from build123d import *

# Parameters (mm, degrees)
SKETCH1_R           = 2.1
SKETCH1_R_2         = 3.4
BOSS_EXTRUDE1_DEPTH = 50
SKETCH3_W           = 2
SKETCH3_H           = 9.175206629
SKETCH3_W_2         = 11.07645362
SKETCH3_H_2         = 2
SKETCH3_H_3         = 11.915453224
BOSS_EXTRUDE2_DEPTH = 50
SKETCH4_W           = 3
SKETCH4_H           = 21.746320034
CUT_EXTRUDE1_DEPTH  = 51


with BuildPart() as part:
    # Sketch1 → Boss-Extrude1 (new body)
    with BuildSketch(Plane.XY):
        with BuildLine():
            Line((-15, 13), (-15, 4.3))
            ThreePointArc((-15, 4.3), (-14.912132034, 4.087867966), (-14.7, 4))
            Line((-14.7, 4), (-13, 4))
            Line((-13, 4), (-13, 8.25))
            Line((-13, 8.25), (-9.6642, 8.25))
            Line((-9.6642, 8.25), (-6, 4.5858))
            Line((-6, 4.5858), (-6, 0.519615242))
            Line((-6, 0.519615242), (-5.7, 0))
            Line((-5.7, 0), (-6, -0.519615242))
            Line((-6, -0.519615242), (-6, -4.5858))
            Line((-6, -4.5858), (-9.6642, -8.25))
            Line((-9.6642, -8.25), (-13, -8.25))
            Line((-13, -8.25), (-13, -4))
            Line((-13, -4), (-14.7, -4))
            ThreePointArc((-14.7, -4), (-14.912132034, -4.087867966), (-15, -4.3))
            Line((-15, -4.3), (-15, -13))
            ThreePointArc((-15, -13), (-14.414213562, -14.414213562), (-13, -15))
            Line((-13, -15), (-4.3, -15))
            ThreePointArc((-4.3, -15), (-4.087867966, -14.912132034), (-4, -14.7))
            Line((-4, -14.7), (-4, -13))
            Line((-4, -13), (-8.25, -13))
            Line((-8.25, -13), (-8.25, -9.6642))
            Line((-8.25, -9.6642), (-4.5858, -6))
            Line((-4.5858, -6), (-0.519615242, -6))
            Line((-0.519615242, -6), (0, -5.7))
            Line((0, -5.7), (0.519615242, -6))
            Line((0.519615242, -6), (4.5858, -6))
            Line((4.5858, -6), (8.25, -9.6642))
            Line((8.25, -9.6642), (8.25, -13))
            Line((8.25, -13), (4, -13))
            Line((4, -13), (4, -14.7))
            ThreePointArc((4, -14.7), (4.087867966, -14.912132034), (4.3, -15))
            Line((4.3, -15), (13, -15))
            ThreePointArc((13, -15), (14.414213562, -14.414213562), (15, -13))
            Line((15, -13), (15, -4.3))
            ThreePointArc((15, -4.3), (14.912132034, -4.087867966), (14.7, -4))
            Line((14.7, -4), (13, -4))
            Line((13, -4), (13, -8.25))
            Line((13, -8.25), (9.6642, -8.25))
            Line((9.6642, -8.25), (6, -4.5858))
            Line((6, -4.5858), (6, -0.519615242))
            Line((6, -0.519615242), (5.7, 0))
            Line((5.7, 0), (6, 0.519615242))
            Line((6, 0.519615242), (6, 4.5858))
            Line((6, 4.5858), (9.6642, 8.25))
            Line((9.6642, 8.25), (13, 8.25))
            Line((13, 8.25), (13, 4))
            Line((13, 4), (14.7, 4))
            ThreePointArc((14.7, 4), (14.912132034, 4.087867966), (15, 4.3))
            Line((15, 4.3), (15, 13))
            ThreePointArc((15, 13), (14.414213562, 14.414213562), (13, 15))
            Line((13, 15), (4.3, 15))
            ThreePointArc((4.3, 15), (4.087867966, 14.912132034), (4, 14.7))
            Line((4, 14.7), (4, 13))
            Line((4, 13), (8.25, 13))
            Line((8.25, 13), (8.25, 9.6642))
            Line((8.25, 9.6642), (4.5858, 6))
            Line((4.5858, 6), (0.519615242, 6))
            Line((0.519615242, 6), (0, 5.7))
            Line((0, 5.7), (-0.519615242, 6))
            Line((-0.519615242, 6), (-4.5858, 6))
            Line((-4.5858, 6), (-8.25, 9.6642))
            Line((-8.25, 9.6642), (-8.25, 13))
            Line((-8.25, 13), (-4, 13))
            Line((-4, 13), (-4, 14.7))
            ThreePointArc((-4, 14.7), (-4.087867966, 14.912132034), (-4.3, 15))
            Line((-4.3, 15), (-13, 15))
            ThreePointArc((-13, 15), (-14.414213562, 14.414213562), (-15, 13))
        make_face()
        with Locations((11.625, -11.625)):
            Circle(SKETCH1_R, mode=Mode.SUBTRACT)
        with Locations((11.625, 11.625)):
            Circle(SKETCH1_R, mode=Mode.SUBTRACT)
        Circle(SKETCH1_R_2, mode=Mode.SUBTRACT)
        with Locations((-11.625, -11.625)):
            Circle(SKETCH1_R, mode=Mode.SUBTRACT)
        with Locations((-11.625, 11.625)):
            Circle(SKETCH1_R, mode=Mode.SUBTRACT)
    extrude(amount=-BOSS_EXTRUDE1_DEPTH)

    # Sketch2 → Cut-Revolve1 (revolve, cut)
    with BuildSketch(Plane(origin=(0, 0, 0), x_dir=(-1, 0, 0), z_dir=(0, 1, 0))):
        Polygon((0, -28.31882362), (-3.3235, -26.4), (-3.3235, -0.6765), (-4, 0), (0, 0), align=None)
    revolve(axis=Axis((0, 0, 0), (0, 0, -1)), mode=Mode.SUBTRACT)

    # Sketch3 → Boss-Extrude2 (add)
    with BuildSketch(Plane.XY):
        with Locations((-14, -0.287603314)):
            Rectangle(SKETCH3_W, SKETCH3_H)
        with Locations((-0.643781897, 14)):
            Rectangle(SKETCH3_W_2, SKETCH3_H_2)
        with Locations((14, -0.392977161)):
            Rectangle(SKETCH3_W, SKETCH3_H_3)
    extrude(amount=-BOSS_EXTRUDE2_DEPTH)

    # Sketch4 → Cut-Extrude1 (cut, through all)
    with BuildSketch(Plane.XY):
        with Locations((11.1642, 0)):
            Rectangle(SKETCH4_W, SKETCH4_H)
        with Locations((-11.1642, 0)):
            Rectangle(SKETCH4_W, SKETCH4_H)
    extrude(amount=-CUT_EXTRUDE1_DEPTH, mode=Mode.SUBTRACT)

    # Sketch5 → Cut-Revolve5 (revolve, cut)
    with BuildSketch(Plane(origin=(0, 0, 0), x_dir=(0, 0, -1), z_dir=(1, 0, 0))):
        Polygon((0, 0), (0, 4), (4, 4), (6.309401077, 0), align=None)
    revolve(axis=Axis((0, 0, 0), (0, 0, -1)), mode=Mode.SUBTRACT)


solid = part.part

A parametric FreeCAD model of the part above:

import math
import FreeCAD as App
import Part
import Sketcher

V = App.Vector
Q = App.Units.Quantity

doc = App.newDocument("Part")
body = doc.addObject("PartDesign::Body", "Body")

sketch1 = body.newObject("Sketcher::SketchObject", "Sketch")
sketch1.AttachmentSupport = (doc.getObject("XY_Plane"), [""])
sketch1.MapMode = "FlatFace"
sketch1.addGeometry([
    Part.LineSegment(V(-15, 13, 0), V(-15, 4.3, 0)),
    Part.ArcOfCircle(Part.Circle(V(-14.7, 4.3, 0), V(0, 0, 1), 0.3), math.radians(-180), math.radians(-90)),
    Part.LineSegment(V(-14.7, 4, 0), V(-13, 4, 0)),
    Part.LineSegment(V(-13, 4, 0), V(-13, 8.25, 0)),
    Part.LineSegment(V(-13, 8.25, 0), V(-9.66, 8.25, 0)),
    Part.LineSegment(V(-9.66, 8.25, 0), V(-6, 4.59, 0)),
    Part.LineSegment(V(-6, 4.59, 0), V(-6, 0.52, 0)),
    Part.LineSegment(V(-6, 0.52, 0), V(-5.7, 0, 0)),
    Part.LineSegment(V(-5.7, 0, 0), V(-6, -0.52, 0)),
    Part.LineSegment(V(-6, -0.52, 0), V(-6, -4.59, 0)),
    Part.LineSegment(V(-6, -4.59, 0), V(-9.66, -8.25, 0)),
    Part.LineSegment(V(-9.66, -8.25, 0), V(-13, -8.25, 0)),
    Part.LineSegment(V(-13, -8.25, 0), V(-13, -4, 0)),
    Part.LineSegment(V(-13, -4, 0), V(-14.7, -4, 0)),
    Part.ArcOfCircle(Part.Circle(V(-14.7, -4.3, 0), V(0, 0, 1), 0.3), math.radians(90), math.radians(180)),
    Part.LineSegment(V(-15, -4.3, 0), V(-15, -13, 0)),
    Part.ArcOfCircle(Part.Circle(V(-13, -13, 0), V(0, 0, 1), 2), math.radians(-180), math.radians(-90)),
    Part.LineSegment(V(-13, -15, 0), V(-4.3, -15, 0)),
    Part.ArcOfCircle(Part.Circle(V(-4.3, -14.7, 0), V(0, 0, 1), 0.3), math.radians(-90), math.radians(0)),
    Part.LineSegment(V(-4, -14.7, 0), V(-4, -13, 0)),
    Part.LineSegment(V(-4, -13, 0), V(-8.25, -13, 0)),
    Part.LineSegment(V(-8.25, -13, 0), V(-8.25, -9.66, 0)),
    Part.LineSegment(V(-8.25, -9.66, 0), V(-4.59, -6, 0)),
    Part.LineSegment(V(-4.59, -6, 0), V(-0.52, -6, 0)),
    Part.LineSegment(V(-0.52, -6, 0), V(0, -5.7, 0)),
    Part.LineSegment(V(0, -5.7, 0), V(0.52, -6, 0)),
    Part.LineSegment(V(0.52, -6, 0), V(4.59, -6, 0)),
    Part.LineSegment(V(4.59, -6, 0), V(8.25, -9.66, 0)),
    Part.LineSegment(V(8.25, -9.66, 0), V(8.25, -13, 0)),
    Part.LineSegment(V(8.25, -13, 0), V(4, -13, 0)),
    Part.LineSegment(V(4, -13, 0), V(4, -14.7, 0)),
    Part.ArcOfCircle(Part.Circle(V(4.3, -14.7, 0), V(0, 0, 1), 0.3), math.radians(-180), math.radians(-90)),
    Part.LineSegment(V(4.3, -15, 0), V(13, -15, 0)),
    Part.ArcOfCircle(Part.Circle(V(13, -13, 0), V(0, 0, 1), 2), math.radians(-90), math.radians(0)),
    Part.LineSegment(V(15, -13, 0), V(15, -4.3, 0)),
    Part.ArcOfCircle(Part.Circle(V(14.7, -4.3, 0), V(0, 0, 1), 0.3), math.radians(0), math.radians(90)),
    Part.LineSegment(V(14.7, -4, 0), V(13, -4, 0)),
    Part.LineSegment(V(13, -4, 0), V(13, -8.25, 0)),
    Part.LineSegment(V(13, -8.25, 0), V(9.66, -8.25, 0)),
    Part.LineSegment(V(9.66, -8.25, 0), V(6, -4.59, 0)),
    Part.LineSegment(V(6, -4.59, 0), V(6, -0.52, 0)),
    Part.LineSegment(V(6, -0.52, 0), V(5.7, 0, 0)),
    Part.LineSegment(V(5.7, 0, 0), V(6, 0.52, 0)),
    Part.LineSegment(V(6, 0.52, 0), V(6, 4.59, 0)),
    Part.LineSegment(V(6, 4.59, 0), V(9.66, 8.25, 0)),
    Part.LineSegment(V(9.66, 8.25, 0), V(13, 8.25, 0)),
    Part.LineSegment(V(13, 8.25, 0), V(13, 4, 0)),
    Part.LineSegment(V(13, 4, 0), V(14.7, 4, 0)),
    Part.ArcOfCircle(Part.Circle(V(14.7, 4.3, 0), V(0, 0, 1), 0.3), math.radians(-90), math.radians(0)),
    Part.LineSegment(V(15, 4.3, 0), V(15, 13, 0)),
    Part.ArcOfCircle(Part.Circle(V(13, 13, 0), V(0, 0, 1), 2), math.radians(0), math.radians(90)),
    Part.LineSegment(V(13, 15, 0), V(4.3, 15, 0)),
    Part.ArcOfCircle(Part.Circle(V(4.3, 14.7, 0), V(0, 0, 1), 0.3), math.radians(90), math.radians(180)),
    Part.LineSegment(V(4, 14.7, 0), V(4, 13, 0)),
    Part.LineSegment(V(4, 13, 0), V(8.25, 13, 0)),
    Part.LineSegment(V(8.25, 13, 0), V(8.25, 9.66, 0)),
    Part.LineSegment(V(8.25, 9.66, 0), V(4.59, 6, 0)),
    Part.LineSegment(V(4.59, 6, 0), V(0.52, 6, 0)),
    Part.LineSegment(V(0.52, 6, 0), V(0, 5.7, 0)),
    Part.LineSegment(V(0, 5.7, 0), V(-0.52, 6, 0)),
    Part.LineSegment(V(-0.52, 6, 0), V(-4.59, 6, 0)),
    Part.LineSegment(V(-4.59, 6, 0), V(-8.25, 9.66, 0)),
    Part.LineSegment(V(-8.25, 9.66, 0), V(-8.25, 13, 0)),
    Part.LineSegment(V(-8.25, 13, 0), V(-4, 13, 0)),
    Part.LineSegment(V(-4, 13, 0), V(-4, 14.7, 0)),
    Part.ArcOfCircle(Part.Circle(V(-4.3, 14.7, 0), V(0, 0, 1), 0.3), math.radians(0), math.radians(90)),
    Part.LineSegment(V(-4.3, 15, 0), V(-13, 15, 0)),
    Part.ArcOfCircle(Part.Circle(V(-13, 13, 0), V(0, 0, 1), 2), math.radians(90), math.radians(180)),
    Part.Circle(V(-11.62, -11.62, 0), V(0, 0, 1), 2.1),
    Part.Circle(V(11.62, -11.62, 0), V(0, 0, 1), 2.1),
    Part.Circle(V(-11.62, 11.62, 0), V(0, 0, 1), 2.1),
    Part.Circle(V(0, 0, 0), V(0, 0, 1), 3.4),
    Part.Circle(V(11.62, 11.62, 0), V(0, 0, 1), 2.1),
], False)
sketch1.addConstraint([
    Sketcher.Constraint("Tangent", 0, 2, 1, 1),
    Sketcher.Constraint("Tangent", 1, 2, 2, 1),
    Sketcher.Constraint("Coincident", 2, 2, 3, 1),
    Sketcher.Constraint("Coincident", 3, 2, 4, 1),
    Sketcher.Constraint("Coincident", 4, 2, 5, 1),
    Sketcher.Constraint("Coincident", 5, 2, 6, 1),
    Sketcher.Constraint("Coincident", 6, 2, 7, 1),
    Sketcher.Constraint("Coincident", 7, 2, 8, 1),
    Sketcher.Constraint("Coincident", 8, 2, 9, 1),
    Sketcher.Constraint("Coincident", 9, 2, 10, 1),
    Sketcher.Constraint("Coincident", 10, 2, 11, 1),
    Sketcher.Constraint("Coincident", 11, 2, 12, 1),
    Sketcher.Constraint("Coincident", 12, 2, 13, 1),
    Sketcher.Constraint("Tangent", 13, 2, 14, 1),
    Sketcher.Constraint("Tangent", 14, 2, 15, 1),
    Sketcher.Constraint("Tangent", 15, 2, 16, 1),
    Sketcher.Constraint("Tangent", 16, 2, 17, 1),
    Sketcher.Constraint("Tangent", 17, 2, 18, 1),
    Sketcher.Constraint("Tangent", 18, 2, 19, 1),
    Sketcher.Constraint("Coincident", 19, 2, 20, 1),
    Sketcher.Constraint("Coincident", 20, 2, 21, 1),
    Sketcher.Constraint("Coincident", 21, 2, 22, 1),
    Sketcher.Constraint("Coincident", 22, 2, 23, 1),
    Sketcher.Constraint("Coincident", 23, 2, 24, 1),
    Sketcher.Constraint("Coincident", 24, 2, 25, 1),
    Sketcher.Constraint("Coincident", 25, 2, 26, 1),
    Sketcher.Constraint("Coincident", 26, 2, 27, 1),
    Sketcher.Constraint("Coincident", 27, 2, 28, 1),
    Sketcher.Constraint("Coincident", 28, 2, 29, 1),
    Sketcher.Constraint("Coincident", 29, 2, 30, 1),
    Sketcher.Constraint("Tangent", 30, 2, 31, 1),
    Sketcher.Constraint("Tangent", 31, 2, 32, 1),
    Sketcher.Constraint("Tangent", 32, 2, 33, 1),
    Sketcher.Constraint("Tangent", 33, 2, 34, 1),
    Sketcher.Constraint("Tangent", 34, 2, 35, 1),
    Sketcher.Constraint("Tangent", 35, 2, 36, 1),
    Sketcher.Constraint("Coincident", 36, 2, 37, 1),
    Sketcher.Constraint("Coincident", 37, 2, 38, 1),
    Sketcher.Constraint("Coincident", 38, 2, 39, 1),
    Sketcher.Constraint("Coincident", 39, 2, 40, 1),
    Sketcher.Constraint("Coincident", 40, 2, 41, 1),
    Sketcher.Constraint("Coincident", 41, 2, 42, 1),
    Sketcher.Constraint("Coincident", 42, 2, 43, 1),
    Sketcher.Constraint("Coincident", 43, 2, 44, 1),
    Sketcher.Constraint("Coincident", 44, 2, 45, 1),
    Sketcher.Constraint("Coincident", 45, 2, 46, 1),
    Sketcher.Constraint("Coincident", 46, 2, 47, 1),
    Sketcher.Constraint("Tangent", 47, 2, 48, 1),
    Sketcher.Constraint("Tangent", 48, 2, 49, 1),
    Sketcher.Constraint("Tangent", 49, 2, 50, 1),
    Sketcher.Constraint("Tangent", 50, 2, 51, 1),
    Sketcher.Constraint("Tangent", 51, 2, 52, 1),
    Sketcher.Constraint("Tangent", 52, 2, 53, 1),
    Sketcher.Constraint("Coincident", 53, 2, 54, 1),
    Sketcher.Constraint("Coincident", 54, 2, 55, 1),
    Sketcher.Constraint("Coincident", 55, 2, 56, 1),
    Sketcher.Constraint("Coincident", 56, 2, 57, 1),
    Sketcher.Constraint("Coincident", 57, 2, 58, 1),
    Sketcher.Constraint("Coincident", 58, 2, 59, 1),
    Sketcher.Constraint("Coincident", 59, 2, 60, 1),
    Sketcher.Constraint("Coincident", 60, 2, 61, 1),
    Sketcher.Constraint("Coincident", 61, 2, 62, 1),
    Sketcher.Constraint("Coincident", 62, 2, 63, 1),
    Sketcher.Constraint("Coincident", 63, 2, 64, 1),
    Sketcher.Constraint("Tangent", 64, 2, 65, 1),
    Sketcher.Constraint("Tangent", 65, 2, 66, 1),
    Sketcher.Constraint("Tangent", 66, 2, 67, 1),
    Sketcher.Constraint("Tangent", 67, 2, 0, 1),
    Sketcher.Constraint("Vertical", 0),
    Sketcher.Constraint("Horizontal", 2),
    Sketcher.Constraint("Vertical", 3),
    Sketcher.Constraint("Horizontal", 4),
    Sketcher.Constraint("Vertical", 6),
    Sketcher.Constraint("Vertical", 9),
    Sketcher.Constraint("Horizontal", 11),
    Sketcher.Constraint("Vertical", 12),
    Sketcher.Constraint("Horizontal", 13),
    Sketcher.Constraint("Vertical", 15),
    Sketcher.Constraint("Horizontal", 17),
    Sketcher.Constraint("Vertical", 19),
    Sketcher.Constraint("Horizontal", 20),
    Sketcher.Constraint("Vertical", 21),
    Sketcher.Constraint("Horizontal", 23),
    Sketcher.Constraint("Horizontal", 26),
    Sketcher.Constraint("Vertical", 28),
    Sketcher.Constraint("Horizontal", 29),
    Sketcher.Constraint("Vertical", 30),
    Sketcher.Constraint("Horizontal", 32),
    Sketcher.Constraint("Vertical", 34),
    Sketcher.Constraint("Horizontal", 36),
    Sketcher.Constraint("Vertical", 37),
    Sketcher.Constraint("Horizontal", 38),
    Sketcher.Constraint("Vertical", 40),
    Sketcher.Constraint("Vertical", 43),
    Sketcher.Constraint("Horizontal", 45),
    Sketcher.Constraint("Vertical", 46),
    Sketcher.Constraint("Horizontal", 47),
    Sketcher.Constraint("Vertical", 49),
    Sketcher.Constraint("Horizontal", 51),
    Sketcher.Constraint("Vertical", 53),
    Sketcher.Constraint("Horizontal", 54),
    Sketcher.Constraint("Vertical", 55),
    Sketcher.Constraint("Horizontal", 57),
    Sketcher.Constraint("Horizontal", 60),
    Sketcher.Constraint("Vertical", 62),
    Sketcher.Constraint("Horizontal", 63),
    Sketcher.Constraint("Vertical", 64),
    Sketcher.Constraint("Horizontal", 66),
    Sketcher.Constraint("Coincident", 71, 3, -1, 1),
    Sketcher.Constraint("Equal", 1, 14),
    Sketcher.Constraint("Equal", 14, 18),
    Sketcher.Constraint("Equal", 18, 31),
    Sketcher.Constraint("Equal", 16, 33),
    Sketcher.Constraint("Equal", 31, 35),
    Sketcher.Constraint("Equal", 35, 48),
    Sketcher.Constraint("Equal", 33, 50),
    Sketcher.Constraint("Equal", 48, 52),
    Sketcher.Constraint("Equal", 52, 65),
    Sketcher.Constraint("Equal", 50, 67),
    Sketcher.Constraint("Equal", 68, 69),
    Sketcher.Constraint("Equal", 69, 70),
    Sketcher.Constraint("Equal", 70, 72),
    Sketcher.Constraint("Symmetric", 1, 3, 35, 3, -1, 1),
    Sketcher.Constraint("Symmetric", 14, 3, 48, 3, -1, 1),
    Sketcher.Constraint("Symmetric", 18, 3, 52, 3, -1, 1),
    Sketcher.Constraint("Symmetric", 31, 3, 65, 3, -1, 1),
    Sketcher.Constraint("Symmetric", 69, 3, 70, 3, -1, 1),
    Sketcher.Constraint("Symmetric", 68, 3, 72, 3, -1, 1),
    Sketcher.Constraint("Symmetric", 3, 2, 37, 2, -1, 1),
    Sketcher.Constraint("Symmetric", 5, 2, 39, 2, -1, 1),
    Sketcher.Constraint("Symmetric", 7, 2, 41, 2, -1, 1),
    Sketcher.Constraint("Symmetric", 8, 2, 42, 2, -1, 1),
    Sketcher.Constraint("Symmetric", 10, 2, 44, 2, -1, 1),
    Sketcher.Constraint("Symmetric", 20, 2, 54, 2, -1, 1),
    Sketcher.Constraint("Symmetric", 22, 2, 56, 2, -1, 1),
    Sketcher.Constraint("Symmetric", 24, 2, 58, 2, -1, 1),
    Sketcher.Constraint("Symmetric", 25, 2, 59, 2, -1, 1),
    Sketcher.Constraint("Symmetric", 27, 2, 61, 2, -1, 1),
    Sketcher.Constraint("Symmetric", 18, 3, 31, 3, -2),
    Sketcher.Constraint("Symmetric", 14, 3, 35, 3, -2),
    Sketcher.Constraint("Symmetric", 68, 3, 69, 3, -2),
    Sketcher.Constraint("Symmetric", 23, 2, 25, 2, -2),
    Sketcher.Constraint("Symmetric", 21, 2, 27, 2, -2),
    Sketcher.Constraint("Symmetric", 11, 2, 37, 2, -2),
    Sketcher.Constraint("Symmetric", 9, 2, 39, 2, -2),
    Sketcher.Constraint("PointOnObject", 7, 2, -1),
    Sketcher.Constraint("PointOnObject", 24, 2, -2),
    Sketcher.Constraint("Perpendicular", 5, 10),
    Sketcher.Constraint("Parallel", 10, 22),
    Sketcher.Constraint("Perpendicular", 7, 24),
    Sketcher.Constraint("Perpendicular", 8, 25),
    Sketcher.Constraint("Perpendicular", 22, 27),
    Sketcher.Constraint("Parallel", 27, 39),
    Sketcher.Constraint("Perpendicular", 24, 41),
    Sketcher.Constraint("Perpendicular", 39, 44),
    Sketcher.Constraint("Parallel", 44, 56),
    Sketcher.Constraint("Perpendicular", 41, 58),
    Sketcher.Constraint("Perpendicular", 56, 61),
    Sketcher.Constraint("Horizontal", 15, 2, 19, 2),
    Sketcher.Constraint("Horizontal", 20, 2, 28, 2),
    Sketcher.Constraint("Horizontal", 54, 2, 62, 2),
    Sketcher.Constraint("Vertical", 67, 3, 2, 2),
    Sketcher.Constraint("Vertical", 4, 2, 10, 2),
    Sketcher.Constraint("Vertical", 37, 2, 45, 2),
    Sketcher.Constraint("Equal", 66, 0),
    Sketcher.Constraint("Equal", 63, 3),
    Sketcher.Constraint("Equal", 60, 6),
    Sketcher.Constraint("Equal", 45, 21),
    Sketcher.Constraint("Equal", 10, 22),
    Sketcher.Constraint("Equal", 8, 24),
    Sketcher.Constraint("Radius", 16, Q("2 mm")),
    Sketcher.Constraint("Diameter", 68, Q("4.2 mm")),
    Sketcher.Constraint("Diameter", 71, Q("6.8 mm")),
    Sketcher.Constraint("Radius", 1, Q("0.3 mm")),
    Sketcher.Constraint("Angle", 7, Q("-60 deg")),
    Sketcher.Constraint("DistanceX", 17, 1, 17, 2, Q("8.7 mm")),
    Sketcher.Constraint("DistanceX", 16, 3, -1, 1, Q("13 mm")),
    Sketcher.Constraint("DistanceX", 5, 2, -1, 1, Q("6 mm")),
    Sketcher.Constraint("Distance", 7, Q("0.6 mm")),
    Sketcher.Constraint("DistanceX", 20, 2, 20, 1, Q("4.25 mm")),
    Sketcher.Constraint("DistanceX", 4, 1, 4, 2, Q("3.3358 mm")),
    Sketcher.Constraint("DistanceX", 68, 3, -1, 1, Q("11.625 mm")),
    Sketcher.Constraint("DistanceY", 68, 3, -1, 1, Q("11.625 mm")),
])
pad1 = body.newObject("PartDesign::Pad", "Pad")
pad1.Profile = sketch1
pad1.Length = 50
pad1.Reversed = True

sketch2 = body.newObject("Sketcher::SketchObject", "Sketch001")
sketch2.AttachmentSupport = (doc.getObject("XZ_Plane"), [""])
sketch2.MapMode = "FlatFace"
sketch2.addGeometry([
    Part.LineSegment(V(3.3, -26.4, 0), V(0, -28.3, 0)),
    Part.LineSegment(V(0, -28.3, 0), V(0, 0, 0)),
    Part.LineSegment(V(0, 0, 0), V(4, 0, 0)),
    Part.LineSegment(V(4, 0, 0), V(3.3, -0.7, 0)),
    Part.LineSegment(V(3.3, -0.7, 0), V(3.3, -26.4, 0)),
], False)
sketch2.addConstraint([
    Sketcher.Constraint("Coincident", 0, 2, 1, 1),
    Sketcher.Constraint("Coincident", 1, 2, 2, 1),
    Sketcher.Constraint("Coincident", 2, 2, 3, 1),
    Sketcher.Constraint("Coincident", 3, 2, 4, 1),
    Sketcher.Constraint("Coincident", 4, 2, 0, 1),
    Sketcher.Constraint("Vertical", 1),
    Sketcher.Constraint("Horizontal", 2),
    Sketcher.Constraint("Vertical", 4),
    Sketcher.Constraint("Coincident", 1, 2, -1, 1),
    Sketcher.Constraint("DistanceX", 2, 1, 2, 2, Q("4 mm")),
    Sketcher.Constraint("Angle", 0, Q("-150 deg")),
    Sketcher.Constraint("Angle", 3, Q("-135 deg")),
    Sketcher.Constraint("DistanceY", 4, 2, -1, 1, Q("26.4 mm")),
    Sketcher.Constraint("DistanceY", 4, 2, 4, 1, Q("25.7235 mm")),
])
groove = body.newObject("PartDesign::Groove", "Groove")
groove.Profile = sketch2
groove.ReferenceAxis = (sketch2, ["V_Axis"])
groove.Angle = 360

sketch3 = body.newObject("Sketcher::SketchObject", "Sketch002")
sketch3.AttachmentSupport = (doc.getObject("XY_Plane"), [""])
sketch3.MapMode = "FlatFace"
sketch3.addGeometry([
    Part.LineSegment(V(-15, 4.3, 0), V(-15, -4.9, 0)),
    Part.LineSegment(V(-15, -4.9, 0), V(-13, -4.9, 0)),
    Part.LineSegment(V(-13, -4.9, 0), V(-13, 4.3, 0)),
    Part.LineSegment(V(-13, 4.3, 0), V(-15, 4.3, 0)),
    Part.LineSegment(V(-6.2, 15, 0), V(-6.2, 13, 0)),
    Part.LineSegment(V(-6.2, 13, 0), V(4.9, 13, 0)),
    Part.LineSegment(V(4.9, 13, 0), V(4.9, 15, 0)),
    Part.LineSegment(V(4.9, 15, 0), V(-6.2, 15, 0)),
    Part.LineSegment(V(13, 5.6, 0), V(13, -6.4, 0)),
    Part.LineSegment(V(13, -6.4, 0), V(15, -6.4, 0)),
    Part.LineSegment(V(15, -6.4, 0), V(15, 5.6, 0)),
    Part.LineSegment(V(15, 5.6, 0), V(13, 5.6, 0)),
], False)
sketch3.addConstraint([
    Sketcher.Constraint("Coincident", 0, 2, 1, 1),
    Sketcher.Constraint("Coincident", 1, 2, 2, 1),
    Sketcher.Constraint("Coincident", 2, 2, 3, 1),
    Sketcher.Constraint("Coincident", 3, 2, 0, 1),
    Sketcher.Constraint("Coincident", 4, 2, 5, 1),
    Sketcher.Constraint("Coincident", 5, 2, 6, 1),
    Sketcher.Constraint("Coincident", 6, 2, 7, 1),
    Sketcher.Constraint("Coincident", 7, 2, 4, 1),
    Sketcher.Constraint("Coincident", 8, 2, 9, 1),
    Sketcher.Constraint("Coincident", 9, 2, 10, 1),
    Sketcher.Constraint("Coincident", 10, 2, 11, 1),
    Sketcher.Constraint("Coincident", 11, 2, 8, 1),
    Sketcher.Constraint("Vertical", 0),
    Sketcher.Constraint("Horizontal", 1),
    Sketcher.Constraint("Vertical", 2),
    Sketcher.Constraint("Horizontal", 3),
    Sketcher.Constraint("Vertical", 4),
    Sketcher.Constraint("Horizontal", 5),
    Sketcher.Constraint("Vertical", 6),
    Sketcher.Constraint("Horizontal", 7),
    Sketcher.Constraint("Vertical", 8),
    Sketcher.Constraint("Horizontal", 9),
    Sketcher.Constraint("Vertical", 10),
    Sketcher.Constraint("Horizontal", 11),
    Sketcher.Constraint("Equal", 3, 9),
    Sketcher.Constraint("Equal", 11, 4),
    Sketcher.Constraint("DistanceX", 1, 1, 1, 2, Q("2 mm")),
    Sketcher.Constraint("DistanceX", 0, 2, -1, 1, Q("15 mm")),
    Sketcher.Constraint("DistanceY", -1, 1, 4, 2, Q("13 mm")),
    Sketcher.Constraint("DistanceX", -1, 1, 8, 2, Q("13 mm")),
    Sketcher.Constraint("DistanceY", -1, 1, 2, 2, Q("4.3 mm")),
    Sketcher.Constraint("DistanceX", 5, 1, 5, 2, Q("11.076454 mm")),
    Sketcher.Constraint("DistanceY", 0, 2, 0, 1, Q("9.175207 mm")),
    Sketcher.Constraint("DistanceY", 8, 2, 8, 1, Q("11.915453 mm")),
    Sketcher.Constraint("DistanceX", 4, 2, -1, 1, Q("6.182009 mm")),
    Sketcher.Constraint("DistanceY", -1, 1, 10, 2, Q("5.564749 mm")),
])
pad2 = body.newObject("PartDesign::Pad", "Pad001")
pad2.Profile = sketch3
pad2.Length = 50
pad2.Reversed = True

sketch4 = body.newObject("Sketcher::SketchObject", "Sketch003")
sketch4.AttachmentSupport = (doc.getObject("XY_Plane"), [""])
sketch4.MapMode = "FlatFace"
sketch4.addGeometry([
    Part.LineSegment(V(9.7, 10.9, 0), V(9.7, -10.9, 0)),
    Part.LineSegment(V(9.7, -10.9, 0), V(12.7, -10.9, 0)),
    Part.LineSegment(V(12.7, -10.9, 0), V(12.7, 10.9, 0)),
    Part.LineSegment(V(12.7, 10.9, 0), V(9.7, 10.9, 0)),
    Part.LineSegment(V(-12.7, 10.9, 0), V(-12.7, -10.9, 0)),
    Part.LineSegment(V(-12.7, -10.9, 0), V(-9.7, -10.9, 0)),
    Part.LineSegment(V(-9.7, -10.9, 0), V(-9.7, 10.9, 0)),
    Part.LineSegment(V(-9.7, 10.9, 0), V(-12.7, 10.9, 0)),
], False)
sketch4.addConstraint([
    Sketcher.Constraint("Coincident", 0, 2, 1, 1),
    Sketcher.Constraint("Coincident", 1, 2, 2, 1),
    Sketcher.Constraint("Coincident", 2, 2, 3, 1),
    Sketcher.Constraint("Coincident", 3, 2, 0, 1),
    Sketcher.Constraint("Coincident", 4, 2, 5, 1),
    Sketcher.Constraint("Coincident", 5, 2, 6, 1),
    Sketcher.Constraint("Coincident", 6, 2, 7, 1),
    Sketcher.Constraint("Coincident", 7, 2, 4, 1),
    Sketcher.Constraint("Vertical", 0),
    Sketcher.Constraint("Horizontal", 1),
    Sketcher.Constraint("Vertical", 2),
    Sketcher.Constraint("Horizontal", 3),
    Sketcher.Constraint("Vertical", 4),
    Sketcher.Constraint("Horizontal", 5),
    Sketcher.Constraint("Vertical", 6),
    Sketcher.Constraint("Horizontal", 7),
    Sketcher.Constraint("Symmetric", 2, 2, 4, 2, -1, 1),
    Sketcher.Constraint("Symmetric", 0, 2, 6, 2, -1, 1),
    Sketcher.Constraint("Horizontal", 1, 2, 4, 2),
    Sketcher.Constraint("DistanceX", 1, 1, 1, 2, Q("3 mm")),
    Sketcher.Constraint("DistanceY", 0, 2, 0, 1, Q("21.74632 mm")),
    Sketcher.Constraint("DistanceX", -1, 1, 0, 2, Q("9.6642 mm")),
])
pocket1 = body.newObject("PartDesign::Pocket", "Pocket")
pocket1.Profile = sketch4
pocket1.Type = "ThroughAll"

sketch5 = body.newObject("Sketcher::SketchObject", "Sketch004")
sketch5.AttachmentSupport = (doc.getObject("YZ_Plane"), [""])
sketch5.MapMode = "FlatFace"
sketch5.addGeometry([
    Part.LineSegment(V(4, 0, 0), V(0, 0, 0)),
    Part.LineSegment(V(0, 0, 0), V(0, -6.3, 0)),
    Part.LineSegment(V(0, -6.3, 0), V(4, -4, 0)),
    Part.LineSegment(V(4, -4, 0), V(4, 0, 0)),
], False)
sketch5.addConstraint([
    Sketcher.Constraint("Coincident", 0, 2, 1, 1),
    Sketcher.Constraint("Coincident", 1, 2, 2, 1),
    Sketcher.Constraint("Coincident", 2, 2, 3, 1),
    Sketcher.Constraint("Coincident", 3, 2, 0, 1),
    Sketcher.Constraint("Horizontal", 0),
    Sketcher.Constraint("Vertical", 1),
    Sketcher.Constraint("Vertical", 3),
    Sketcher.Constraint("Coincident", 0, 2, -1, 1),
    Sketcher.Constraint("Equal", 0, 3),
    Sketcher.Constraint("DistanceX", 0, 2, 0, 1, Q("4 mm")),
    Sketcher.Constraint("Angle", 2, Q("30 deg")),
])
groove2 = body.newObject("PartDesign::Groove", "Groove001")
groove2.Profile = sketch5
groove2.ReferenceAxis = (sketch5, ["V_Axis"])
groove2.Angle = 360

doc.recompute()
